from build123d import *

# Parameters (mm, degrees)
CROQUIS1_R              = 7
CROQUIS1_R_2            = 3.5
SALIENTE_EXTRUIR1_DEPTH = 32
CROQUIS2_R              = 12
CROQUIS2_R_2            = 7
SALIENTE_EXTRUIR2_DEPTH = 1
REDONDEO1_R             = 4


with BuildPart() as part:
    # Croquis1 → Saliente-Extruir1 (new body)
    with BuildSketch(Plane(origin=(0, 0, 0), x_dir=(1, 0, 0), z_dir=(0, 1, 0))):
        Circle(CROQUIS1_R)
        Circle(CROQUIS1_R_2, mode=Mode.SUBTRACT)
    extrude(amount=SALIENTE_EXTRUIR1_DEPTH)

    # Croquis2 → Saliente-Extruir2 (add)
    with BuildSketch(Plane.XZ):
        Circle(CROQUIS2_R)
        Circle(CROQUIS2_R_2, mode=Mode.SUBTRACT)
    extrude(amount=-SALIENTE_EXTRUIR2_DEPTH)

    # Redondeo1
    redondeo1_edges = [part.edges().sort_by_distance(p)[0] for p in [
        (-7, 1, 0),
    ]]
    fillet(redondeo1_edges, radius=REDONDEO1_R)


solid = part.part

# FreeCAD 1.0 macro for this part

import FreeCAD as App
import Part
import Sketcher

V = App.Vector
Q = App.Units.Quantity


def edges_at(feature, points):
    """Names of the edges that pass closest to the given points."""
    edges = feature.Shape.Edges
    near = lambda p: min(range(len(edges)), key=lambda i: edges[i].distToShape(Part.Vertex(*p))[0])
    return sorted({f"Edge{near(p) + 1}" for p in points})

doc = App.newDocument("Part")
body = doc.addObject("PartDesign::Body", "Body")

# Sketch on XZ plane
sketch1 = body.newObject("Sketcher::SketchObject", "Sketch")
sketch1.AttachmentSupport = (doc.getObject("XZ_Plane"), [""])
sketch1.MapMode = "FlatFace"
sketch1.addGeometry(Part.Circle(V(0, 0, 0), V(0, 0, 1), 7), False)
sketch1.addGeometry(Part.Circle(V(0, 0, 0), V(0, 0, 1), 3.5), False)
sketch1.addConstraint(Sketcher.Constraint("Coincident", 0, 3, -1, 1))
sketch1.addConstraint(Sketcher.Constraint("Coincident", 1, 3, -1, 1))
sketch1.addConstraint(Sketcher.Constraint("Diameter", 0, Q("14 mm")))
sketch1.addConstraint(Sketcher.Constraint("Diameter", 1, Q("7 mm")))
pad1 = body.newObject("PartDesign::Pad", "Pad")
pad1.Profile = sketch1
pad1.Length = 32
pad1.Reversed = True

# Sketch on XZ plane
sketch2 = body.newObject("Sketcher::SketchObject", "Sketch001")
sketch2.AttachmentSupport = (doc.getObject("XZ_Plane"), [""])
sketch2.MapMode = "FlatFace"
sketch2.addGeometry(Part.Circle(V(0, 0, 0), V(0, 0, 1), 12), False)
sketch2.addGeometry(Part.Circle(V(0, 0, 0), V(0, 0, 1), 7), False)
sketch2.addConstraint(Sketcher.Constraint("Coincident", 0, 3, -1, 1))
sketch2.addConstraint(Sketcher.Constraint("Coincident", 1, 3, -1, 1))
sketch2.addConstraint(Sketcher.Constraint("Diameter", 0, Q("24 mm")))
sketch2.addConstraint(Sketcher.Constraint("Diameter", 1, Q("14 mm")))
pad2 = body.newObject("PartDesign::Pad", "Pad001")
pad2.Profile = sketch2
pad2.Length = 1
pad2.Reversed = True
doc.recompute()

fillet = body.newObject("PartDesign::Fillet", "Fillet")
fillet.Base = (pad2, edges_at(pad2, [(-7, 1, 0)]))
fillet.Radius = 4

doc.recompute()
